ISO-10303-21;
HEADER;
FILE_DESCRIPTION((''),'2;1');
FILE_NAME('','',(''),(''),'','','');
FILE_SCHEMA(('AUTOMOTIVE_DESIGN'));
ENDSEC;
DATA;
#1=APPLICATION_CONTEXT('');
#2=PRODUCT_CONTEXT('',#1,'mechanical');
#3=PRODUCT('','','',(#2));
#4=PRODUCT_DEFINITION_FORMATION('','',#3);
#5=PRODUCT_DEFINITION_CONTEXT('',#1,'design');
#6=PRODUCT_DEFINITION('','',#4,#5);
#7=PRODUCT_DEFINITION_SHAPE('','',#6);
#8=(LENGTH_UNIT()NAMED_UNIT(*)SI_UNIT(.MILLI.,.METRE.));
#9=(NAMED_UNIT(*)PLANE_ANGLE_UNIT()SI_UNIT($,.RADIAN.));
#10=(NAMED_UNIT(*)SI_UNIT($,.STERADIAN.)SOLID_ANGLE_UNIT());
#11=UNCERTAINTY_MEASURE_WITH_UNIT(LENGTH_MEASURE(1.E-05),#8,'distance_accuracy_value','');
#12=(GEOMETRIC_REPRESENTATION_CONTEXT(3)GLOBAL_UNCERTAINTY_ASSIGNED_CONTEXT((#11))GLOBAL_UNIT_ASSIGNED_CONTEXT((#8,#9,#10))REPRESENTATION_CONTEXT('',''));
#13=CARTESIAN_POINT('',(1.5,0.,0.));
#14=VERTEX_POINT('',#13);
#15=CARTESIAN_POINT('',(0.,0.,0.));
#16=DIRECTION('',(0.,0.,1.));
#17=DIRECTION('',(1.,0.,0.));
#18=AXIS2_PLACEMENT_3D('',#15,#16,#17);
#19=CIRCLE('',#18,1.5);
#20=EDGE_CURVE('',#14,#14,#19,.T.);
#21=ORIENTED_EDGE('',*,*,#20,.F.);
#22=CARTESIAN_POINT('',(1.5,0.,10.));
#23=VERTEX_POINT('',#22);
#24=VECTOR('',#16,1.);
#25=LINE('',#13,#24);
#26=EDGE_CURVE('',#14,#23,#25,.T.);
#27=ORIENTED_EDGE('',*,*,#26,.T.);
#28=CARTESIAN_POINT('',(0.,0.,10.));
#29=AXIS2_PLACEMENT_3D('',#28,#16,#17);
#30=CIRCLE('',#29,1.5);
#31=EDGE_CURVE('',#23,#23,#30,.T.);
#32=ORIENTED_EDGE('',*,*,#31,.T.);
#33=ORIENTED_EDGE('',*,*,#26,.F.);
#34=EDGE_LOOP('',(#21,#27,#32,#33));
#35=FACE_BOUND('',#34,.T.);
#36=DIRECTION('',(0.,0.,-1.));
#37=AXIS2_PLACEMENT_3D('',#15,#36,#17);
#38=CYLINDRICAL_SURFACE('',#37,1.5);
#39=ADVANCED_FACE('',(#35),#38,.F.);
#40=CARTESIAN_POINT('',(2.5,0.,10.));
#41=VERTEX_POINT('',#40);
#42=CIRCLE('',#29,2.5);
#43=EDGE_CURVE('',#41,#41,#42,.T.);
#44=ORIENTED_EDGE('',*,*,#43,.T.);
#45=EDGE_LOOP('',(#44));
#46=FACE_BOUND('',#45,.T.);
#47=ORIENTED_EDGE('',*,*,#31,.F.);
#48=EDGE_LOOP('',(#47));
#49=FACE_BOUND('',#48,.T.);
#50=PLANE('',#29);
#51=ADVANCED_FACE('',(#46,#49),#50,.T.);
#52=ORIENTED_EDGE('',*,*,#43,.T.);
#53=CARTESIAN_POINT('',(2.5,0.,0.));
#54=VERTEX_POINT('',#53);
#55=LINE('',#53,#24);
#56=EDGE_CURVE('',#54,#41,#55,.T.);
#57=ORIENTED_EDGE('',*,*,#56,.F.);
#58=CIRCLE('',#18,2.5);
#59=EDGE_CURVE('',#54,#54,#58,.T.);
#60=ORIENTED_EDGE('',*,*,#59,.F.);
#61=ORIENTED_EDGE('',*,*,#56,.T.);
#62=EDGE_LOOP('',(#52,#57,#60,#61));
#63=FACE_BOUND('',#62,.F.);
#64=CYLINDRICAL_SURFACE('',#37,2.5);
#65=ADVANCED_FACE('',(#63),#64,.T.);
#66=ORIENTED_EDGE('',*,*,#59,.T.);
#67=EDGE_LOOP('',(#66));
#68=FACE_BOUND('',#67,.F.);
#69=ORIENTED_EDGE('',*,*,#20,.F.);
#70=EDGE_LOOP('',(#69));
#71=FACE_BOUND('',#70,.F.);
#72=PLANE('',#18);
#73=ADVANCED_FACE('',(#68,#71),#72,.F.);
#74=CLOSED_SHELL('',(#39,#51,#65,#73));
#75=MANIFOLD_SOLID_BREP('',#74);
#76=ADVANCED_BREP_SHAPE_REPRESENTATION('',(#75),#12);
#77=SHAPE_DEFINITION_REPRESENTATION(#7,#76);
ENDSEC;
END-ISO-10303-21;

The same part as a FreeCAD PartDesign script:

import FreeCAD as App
import Part
import Sketcher
Q = App.Units.Quantity

doc = App.newDocument("Part")
body = doc.addObject("PartDesign::Body", "Body")

# Sketch on XY plane
sketch1 = body.newObject("Sketcher::SketchObject", "Sketch")
sketch1.AttachmentSupport = (doc.getObject("XY_Plane"), [""])
sketch1.MapMode = "FlatFace"
sketch1.addGeometry(Part.Circle(App.Vector(0, 0, 0), App.Vector(0, 0, 1), 2.5), False)
sketch1.addGeometry(Part.Circle(App.Vector(0, 0, 0), App.Vector(0, 0, 1), 1.5), False)
sketch1.addConstraint(Sketcher.Constraint("Coincident", 0, 3, -1, 1))
sketch1.addConstraint(Sketcher.Constraint("Coincident", 1, 3, -1, 1))
sketch1.addConstraint(Sketcher.Constraint("Diameter", 0, Q("5 mm")))
sketch1.addConstraint(Sketcher.Constraint("Diameter", 1, Q("3 mm")))
pad1 = body.newObject("PartDesign::Pad", "Pad")
pad1.Profile = sketch1
pad1.Length = 10

doc.recompute()
